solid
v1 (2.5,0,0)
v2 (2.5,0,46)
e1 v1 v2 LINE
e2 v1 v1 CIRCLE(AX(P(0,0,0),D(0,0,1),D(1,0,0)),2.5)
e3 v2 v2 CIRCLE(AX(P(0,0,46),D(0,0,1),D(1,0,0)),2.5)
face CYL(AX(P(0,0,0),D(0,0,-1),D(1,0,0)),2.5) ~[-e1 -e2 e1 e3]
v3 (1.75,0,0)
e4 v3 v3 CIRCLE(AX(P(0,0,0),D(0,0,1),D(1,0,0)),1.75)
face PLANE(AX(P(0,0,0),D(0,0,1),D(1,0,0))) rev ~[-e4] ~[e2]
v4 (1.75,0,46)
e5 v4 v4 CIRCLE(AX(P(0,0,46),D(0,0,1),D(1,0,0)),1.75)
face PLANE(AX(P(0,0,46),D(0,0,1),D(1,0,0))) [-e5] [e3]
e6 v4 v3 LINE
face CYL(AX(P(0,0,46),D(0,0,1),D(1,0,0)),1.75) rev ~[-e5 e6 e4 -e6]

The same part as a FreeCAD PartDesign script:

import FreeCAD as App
import Part
import Sketcher
Q = App.Units.Quantity

doc = App.newDocument("Part")
body = doc.addObject("PartDesign::Body", "Body")

# Sketch on XY plane
sketch1 = body.newObject("Sketcher::SketchObject", "Sketch")
sketch1.AttachmentSupport = (doc.getObject("XY_Plane"), [""])
sketch1.MapMode = "FlatFace"
sketch1.addGeometry(Part.Circle(App.Vector(0, 0, 0), App.Vector(0, 0, 1), 2.5), False)
sketch1.addConstraint([
    Sketcher.Constraint("Coincident", 0, 3, -1, 1),
    Sketcher.Constraint("Diameter", 0, Q("5 mm")),
])
pad1 = body.newObject("PartDesign::Pad", "Pad")
pad1.Profile = sketch1
pad1.Length = 46

# Sketch on XY plane
sketch2 = body.newObject("Sketcher::SketchObject", "Sketch001")
sketch2.AttachmentSupport = (doc.getObject("XY_Plane"), [""])
sketch2.MapMode = "FlatFace"
sketch2.AttachmentOffset = App.Placement(App.Vector(0, 0, 46), App.Rotation())
sketch2.addGeometry(Part.Circle(App.Vector(0, 0, 0), App.Vector(0, 0, 1), 1.8), False)
sketch2.addConstraint([
    Sketcher.Constraint("Coincident", 0, 3, -1, 1),
    Sketcher.Constraint("Diameter", 0, Q("3.5 mm")),
])
pocket1 = body.newObject("PartDesign::Pocket", "Pocket")
pocket1.Profile = sketch2
pocket1.Length = 49

doc.recompute()
